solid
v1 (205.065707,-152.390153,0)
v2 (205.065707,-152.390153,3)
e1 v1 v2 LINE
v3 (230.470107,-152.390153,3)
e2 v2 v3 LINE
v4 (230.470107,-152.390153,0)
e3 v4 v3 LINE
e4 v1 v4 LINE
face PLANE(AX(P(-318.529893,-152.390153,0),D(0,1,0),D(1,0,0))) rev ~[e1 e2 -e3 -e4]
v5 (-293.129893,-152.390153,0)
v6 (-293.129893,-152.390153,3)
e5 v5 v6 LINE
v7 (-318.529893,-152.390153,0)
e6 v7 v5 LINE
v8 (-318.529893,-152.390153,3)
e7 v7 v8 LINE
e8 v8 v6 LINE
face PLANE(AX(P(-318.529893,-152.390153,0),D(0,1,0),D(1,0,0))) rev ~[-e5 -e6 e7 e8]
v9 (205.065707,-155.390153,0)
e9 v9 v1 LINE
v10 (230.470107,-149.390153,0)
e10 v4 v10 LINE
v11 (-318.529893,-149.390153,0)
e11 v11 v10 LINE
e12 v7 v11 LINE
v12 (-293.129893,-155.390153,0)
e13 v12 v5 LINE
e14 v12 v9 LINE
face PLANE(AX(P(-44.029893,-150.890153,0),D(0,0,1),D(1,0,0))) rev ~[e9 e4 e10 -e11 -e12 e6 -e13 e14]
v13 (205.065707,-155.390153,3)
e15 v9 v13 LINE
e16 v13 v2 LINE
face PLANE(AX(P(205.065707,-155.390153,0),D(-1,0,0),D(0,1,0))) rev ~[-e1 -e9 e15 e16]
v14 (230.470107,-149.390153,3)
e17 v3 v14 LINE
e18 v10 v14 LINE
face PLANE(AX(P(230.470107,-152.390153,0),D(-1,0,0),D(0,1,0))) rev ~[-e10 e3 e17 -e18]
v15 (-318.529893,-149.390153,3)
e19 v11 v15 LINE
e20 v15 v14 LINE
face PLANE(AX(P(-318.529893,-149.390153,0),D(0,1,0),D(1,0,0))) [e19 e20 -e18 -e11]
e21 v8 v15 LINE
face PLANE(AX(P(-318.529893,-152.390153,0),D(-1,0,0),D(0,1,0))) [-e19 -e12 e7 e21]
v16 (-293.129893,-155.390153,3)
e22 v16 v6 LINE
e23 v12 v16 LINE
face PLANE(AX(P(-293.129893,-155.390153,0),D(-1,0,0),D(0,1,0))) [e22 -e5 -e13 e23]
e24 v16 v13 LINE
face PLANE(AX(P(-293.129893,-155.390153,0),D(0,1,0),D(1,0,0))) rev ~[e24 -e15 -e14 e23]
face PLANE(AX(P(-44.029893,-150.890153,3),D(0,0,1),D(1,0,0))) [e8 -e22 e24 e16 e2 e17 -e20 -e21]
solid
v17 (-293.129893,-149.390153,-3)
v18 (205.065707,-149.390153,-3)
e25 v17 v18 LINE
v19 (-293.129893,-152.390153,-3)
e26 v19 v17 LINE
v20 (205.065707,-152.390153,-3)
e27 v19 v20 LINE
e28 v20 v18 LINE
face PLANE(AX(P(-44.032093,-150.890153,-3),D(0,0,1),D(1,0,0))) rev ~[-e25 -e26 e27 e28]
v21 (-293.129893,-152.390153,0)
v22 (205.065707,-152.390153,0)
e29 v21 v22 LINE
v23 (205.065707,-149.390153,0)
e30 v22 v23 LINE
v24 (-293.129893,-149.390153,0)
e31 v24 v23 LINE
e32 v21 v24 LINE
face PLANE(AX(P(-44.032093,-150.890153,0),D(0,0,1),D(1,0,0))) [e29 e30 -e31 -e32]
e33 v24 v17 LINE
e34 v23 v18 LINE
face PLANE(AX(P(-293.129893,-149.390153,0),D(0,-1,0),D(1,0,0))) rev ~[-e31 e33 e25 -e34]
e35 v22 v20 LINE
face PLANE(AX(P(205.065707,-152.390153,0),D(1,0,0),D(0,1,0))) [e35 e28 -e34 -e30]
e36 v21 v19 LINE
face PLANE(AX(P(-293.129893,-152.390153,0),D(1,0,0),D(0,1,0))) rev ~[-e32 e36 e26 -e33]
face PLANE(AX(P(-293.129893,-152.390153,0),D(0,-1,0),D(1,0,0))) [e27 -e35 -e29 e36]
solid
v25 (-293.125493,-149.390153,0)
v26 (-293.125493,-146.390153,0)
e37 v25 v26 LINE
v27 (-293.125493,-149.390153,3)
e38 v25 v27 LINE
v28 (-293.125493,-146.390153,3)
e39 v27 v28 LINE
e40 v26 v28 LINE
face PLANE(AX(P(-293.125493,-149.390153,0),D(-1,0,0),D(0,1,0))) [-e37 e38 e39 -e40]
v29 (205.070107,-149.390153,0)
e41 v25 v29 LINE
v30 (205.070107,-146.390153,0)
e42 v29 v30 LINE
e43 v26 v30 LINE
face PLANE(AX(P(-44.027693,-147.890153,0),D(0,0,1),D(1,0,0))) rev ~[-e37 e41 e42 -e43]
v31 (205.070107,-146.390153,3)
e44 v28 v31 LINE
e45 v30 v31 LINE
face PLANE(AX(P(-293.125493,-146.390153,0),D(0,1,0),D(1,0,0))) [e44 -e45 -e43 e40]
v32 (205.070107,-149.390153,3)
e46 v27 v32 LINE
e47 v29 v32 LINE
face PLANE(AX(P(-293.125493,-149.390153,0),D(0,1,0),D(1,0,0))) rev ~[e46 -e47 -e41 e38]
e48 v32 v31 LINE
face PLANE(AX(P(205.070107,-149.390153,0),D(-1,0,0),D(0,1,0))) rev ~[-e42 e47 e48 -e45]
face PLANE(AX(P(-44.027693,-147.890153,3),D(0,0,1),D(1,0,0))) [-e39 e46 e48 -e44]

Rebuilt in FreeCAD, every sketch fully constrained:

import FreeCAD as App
import Part
import Sketcher

V = App.Vector
Q = App.Units.Quantity


def add_polygon(sketch, points):
    """Adds a closed chain of lines whose ends are joined by coincident constraints."""
    first, n = sketch.GeometryCount, len(points)
    for a, b in zip(points, points[1:] + points[:1]):
        sketch.addGeometry(Part.LineSegment(App.Vector(*a, 0), App.Vector(*b, 0)), False)
    for i in range(n):
        sketch.addConstraint(Sketcher.Constraint("Coincident", first + i, 2, first + (i + 1) % n, 1))

doc = App.newDocument("Part")
params = doc.addObject("Spreadsheet::Sheet", "Params")
for row, (alias, value) in enumerate([
    ("sketch1_width", "549 mm"),
    ("sketch1_height", "3 mm"),
    ("pad1_length", "3 mm"),
    ("sketch2_height", "3 mm"),
    ("pad2_length", "3 mm"),
    ("sketch3_height", "3 mm"),
    ("pad3_length", "3 mm"),
    ("sketch4_height", "3 mm"),
    ("pad4_length", "3 mm"),
], start=1):
    params.set(f"A{row}", alias)
    params.set(f"B{row}", "=" + value)
    params.setAlias(f"B{row}", alias)

body = doc.addObject("PartDesign::Body", "Body")

# Sketch on XY plane
sketch1 = body.newObject("Sketcher::SketchObject", "Sketch")
sketch1.AttachmentSupport = (doc.getObject("XY_Plane"), [""])
sketch1.MapMode = "FlatFace"
add_polygon(sketch1, [(-318.529893, -149.390153), (-318.529893, -152.390153), (230.470107, -152.390153), (230.470107, -149.390153)])  # lines 0-3
sketch1.addConstraint(Sketcher.Constraint("Vertical", 0))
sketch1.addConstraint(Sketcher.Constraint("Horizontal", 1))
sketch1.addConstraint(Sketcher.Constraint("Vertical", 2))
sketch1.addConstraint(Sketcher.Constraint("Horizontal", 3))
sketch1.addConstraint(Sketcher.Constraint("DistanceX", 1, 1, 1, 2, Q("549 mm")))
sketch1.addConstraint(Sketcher.Constraint("DistanceY", 0, 2, 0, 1, Q("3 mm")))
sketch1.addConstraint(Sketcher.Constraint("DistanceX", 0, 2, -1, 1, Q("318.529893 mm")))
sketch1.addConstraint(Sketcher.Constraint("DistanceY", 0, 2, -1, 1, Q("152.390153 mm")))
sketch1.setExpression("Constraints[8]", "Params.sketch1_width")
sketch1.setExpression("Constraints[9]", "Params.sketch1_height")
pad1 = body.newObject("PartDesign::Pad", "Pad")
pad1.Profile = sketch1
pad1.setExpression("Length", "Params.pad1_length")

# Sketch on XY plane
sketch2 = body.newObject("Sketcher::SketchObject", "Sketch001")
sketch2.AttachmentSupport = (doc.getObject("XY_Plane"), [""])
sketch2.MapMode = "FlatFace"
add_polygon(sketch2, [(-293.129893, -152.390153), (-293.129893, -155.390153), (205.065707, -155.390153), (205.065707, -152.390153)])  # lines 0-3
sketch2.addConstraint(Sketcher.Constraint("Vertical", 0))
sketch2.addConstraint(Sketcher.Constraint("Horizontal", 1))
sketch2.addConstraint(Sketcher.Constraint("Vertical", 2))
sketch2.addConstraint(Sketcher.Constraint("Horizontal", 3))
sketch2.addConstraint(Sketcher.Constraint("DistanceY", 0, 2, 0, 1, Q("3 mm")))
sketch2.addConstraint(Sketcher.Constraint("DistanceX", 1, 1, 1, 2, Q("498.1956 mm")))
sketch2.addConstraint(Sketcher.Constraint("DistanceX", 0, 2, -1, 1, Q("293.129893 mm")))
sketch2.addConstraint(Sketcher.Constraint("DistanceY", 0, 2, -1, 1, Q("155.390153 mm")))
sketch2.setExpression("Constraints[8]", "Params.sketch2_height")
pad2 = body.newObject("PartDesign::Pad", "Pad001")
pad2.Profile = sketch2
pad2.setExpression("Length", "Params.pad2_length")
body2 = doc.addObject("PartDesign::Body", "Body001")

# Sketch on XY plane
sketch3 = body2.newObject("Sketcher::SketchObject", "Sketch002")
sketch3.AttachmentSupport = (doc.getObject("XY_Plane001"), [""])
sketch3.MapMode = "FlatFace"
add_polygon(sketch3, [(-293.125493, -146.390153), (-293.125493, -149.390153), (205.070107, -149.390153), (205.070107, -146.390153)])  # lines 0-3
sketch3.addConstraint(Sketcher.Constraint("Vertical", 0))
sketch3.addConstraint(Sketcher.Constraint("Horizontal", 1))
sketch3.addConstraint(Sketcher.Constraint("Vertical", 2))
sketch3.addConstraint(Sketcher.Constraint("Horizontal", 3))
sketch3.addConstraint(Sketcher.Constraint("DistanceY", 0, 2, 0, 1, Q("3 mm")))
sketch3.addConstraint(Sketcher.Constraint("DistanceX", 1, 1, 1, 2, Q("498.1956 mm")))
sketch3.addConstraint(Sketcher.Constraint("DistanceX", 0, 2, -1, 1, Q("293.125493 mm")))
sketch3.addConstraint(Sketcher.Constraint("DistanceY", 0, 2, -1, 1, Q("149.390153 mm")))
sketch3.setExpression("Constraints[8]", "Params.sketch3_height")
pad3 = body2.newObject("PartDesign::Pad", "Pad002")
pad3.Profile = sketch3
pad3.setExpression("Length", "Params.pad3_length")
body3 = doc.addObject("PartDesign::Body", "Body002")

# Sketch on XY plane
sketch4 = body3.newObject("Sketcher::SketchObject", "Sketch003")
sketch4.AttachmentSupport = (doc.getObject("XY_Plane002"), [""])
sketch4.MapMode = "FlatFace"
add_polygon(sketch4, [(-293.129893, -149.390153), (-293.129893, -152.390153), (205.065707, -152.390153), (205.065707, -149.390153)])  # lines 0-3
sketch4.addConstraint(Sketcher.Constraint("Vertical", 0))
sketch4.addConstraint(Sketcher.Constraint("Horizontal", 1))
sketch4.addConstraint(Sketcher.Constraint("Vertical", 2))
sketch4.addConstraint(Sketcher.Constraint("Horizontal", 3))
sketch4.addConstraint(Sketcher.Constraint("DistanceY", 0, 2, 0, 1, Q("3 mm")))
sketch4.addConstraint(Sketcher.Constraint("DistanceX", 1, 1, 1, 2, Q("498.1956 mm")))
sketch4.addConstraint(Sketcher.Constraint("DistanceX", 0, 2, -1, 1, Q("293.129893 mm")))
sketch4.addConstraint(Sketcher.Constraint("DistanceY", 0, 2, -1, 1, Q("152.390153 mm")))
sketch4.setExpression("Constraints[8]", "Params.sketch4_height")
pad4 = body3.newObject("PartDesign::Pad", "Pad003")
pad4.Profile = sketch4
pad4.setExpression("Length", "Params.pad4_length")
pad4.Reversed = True

doc.recompute()
